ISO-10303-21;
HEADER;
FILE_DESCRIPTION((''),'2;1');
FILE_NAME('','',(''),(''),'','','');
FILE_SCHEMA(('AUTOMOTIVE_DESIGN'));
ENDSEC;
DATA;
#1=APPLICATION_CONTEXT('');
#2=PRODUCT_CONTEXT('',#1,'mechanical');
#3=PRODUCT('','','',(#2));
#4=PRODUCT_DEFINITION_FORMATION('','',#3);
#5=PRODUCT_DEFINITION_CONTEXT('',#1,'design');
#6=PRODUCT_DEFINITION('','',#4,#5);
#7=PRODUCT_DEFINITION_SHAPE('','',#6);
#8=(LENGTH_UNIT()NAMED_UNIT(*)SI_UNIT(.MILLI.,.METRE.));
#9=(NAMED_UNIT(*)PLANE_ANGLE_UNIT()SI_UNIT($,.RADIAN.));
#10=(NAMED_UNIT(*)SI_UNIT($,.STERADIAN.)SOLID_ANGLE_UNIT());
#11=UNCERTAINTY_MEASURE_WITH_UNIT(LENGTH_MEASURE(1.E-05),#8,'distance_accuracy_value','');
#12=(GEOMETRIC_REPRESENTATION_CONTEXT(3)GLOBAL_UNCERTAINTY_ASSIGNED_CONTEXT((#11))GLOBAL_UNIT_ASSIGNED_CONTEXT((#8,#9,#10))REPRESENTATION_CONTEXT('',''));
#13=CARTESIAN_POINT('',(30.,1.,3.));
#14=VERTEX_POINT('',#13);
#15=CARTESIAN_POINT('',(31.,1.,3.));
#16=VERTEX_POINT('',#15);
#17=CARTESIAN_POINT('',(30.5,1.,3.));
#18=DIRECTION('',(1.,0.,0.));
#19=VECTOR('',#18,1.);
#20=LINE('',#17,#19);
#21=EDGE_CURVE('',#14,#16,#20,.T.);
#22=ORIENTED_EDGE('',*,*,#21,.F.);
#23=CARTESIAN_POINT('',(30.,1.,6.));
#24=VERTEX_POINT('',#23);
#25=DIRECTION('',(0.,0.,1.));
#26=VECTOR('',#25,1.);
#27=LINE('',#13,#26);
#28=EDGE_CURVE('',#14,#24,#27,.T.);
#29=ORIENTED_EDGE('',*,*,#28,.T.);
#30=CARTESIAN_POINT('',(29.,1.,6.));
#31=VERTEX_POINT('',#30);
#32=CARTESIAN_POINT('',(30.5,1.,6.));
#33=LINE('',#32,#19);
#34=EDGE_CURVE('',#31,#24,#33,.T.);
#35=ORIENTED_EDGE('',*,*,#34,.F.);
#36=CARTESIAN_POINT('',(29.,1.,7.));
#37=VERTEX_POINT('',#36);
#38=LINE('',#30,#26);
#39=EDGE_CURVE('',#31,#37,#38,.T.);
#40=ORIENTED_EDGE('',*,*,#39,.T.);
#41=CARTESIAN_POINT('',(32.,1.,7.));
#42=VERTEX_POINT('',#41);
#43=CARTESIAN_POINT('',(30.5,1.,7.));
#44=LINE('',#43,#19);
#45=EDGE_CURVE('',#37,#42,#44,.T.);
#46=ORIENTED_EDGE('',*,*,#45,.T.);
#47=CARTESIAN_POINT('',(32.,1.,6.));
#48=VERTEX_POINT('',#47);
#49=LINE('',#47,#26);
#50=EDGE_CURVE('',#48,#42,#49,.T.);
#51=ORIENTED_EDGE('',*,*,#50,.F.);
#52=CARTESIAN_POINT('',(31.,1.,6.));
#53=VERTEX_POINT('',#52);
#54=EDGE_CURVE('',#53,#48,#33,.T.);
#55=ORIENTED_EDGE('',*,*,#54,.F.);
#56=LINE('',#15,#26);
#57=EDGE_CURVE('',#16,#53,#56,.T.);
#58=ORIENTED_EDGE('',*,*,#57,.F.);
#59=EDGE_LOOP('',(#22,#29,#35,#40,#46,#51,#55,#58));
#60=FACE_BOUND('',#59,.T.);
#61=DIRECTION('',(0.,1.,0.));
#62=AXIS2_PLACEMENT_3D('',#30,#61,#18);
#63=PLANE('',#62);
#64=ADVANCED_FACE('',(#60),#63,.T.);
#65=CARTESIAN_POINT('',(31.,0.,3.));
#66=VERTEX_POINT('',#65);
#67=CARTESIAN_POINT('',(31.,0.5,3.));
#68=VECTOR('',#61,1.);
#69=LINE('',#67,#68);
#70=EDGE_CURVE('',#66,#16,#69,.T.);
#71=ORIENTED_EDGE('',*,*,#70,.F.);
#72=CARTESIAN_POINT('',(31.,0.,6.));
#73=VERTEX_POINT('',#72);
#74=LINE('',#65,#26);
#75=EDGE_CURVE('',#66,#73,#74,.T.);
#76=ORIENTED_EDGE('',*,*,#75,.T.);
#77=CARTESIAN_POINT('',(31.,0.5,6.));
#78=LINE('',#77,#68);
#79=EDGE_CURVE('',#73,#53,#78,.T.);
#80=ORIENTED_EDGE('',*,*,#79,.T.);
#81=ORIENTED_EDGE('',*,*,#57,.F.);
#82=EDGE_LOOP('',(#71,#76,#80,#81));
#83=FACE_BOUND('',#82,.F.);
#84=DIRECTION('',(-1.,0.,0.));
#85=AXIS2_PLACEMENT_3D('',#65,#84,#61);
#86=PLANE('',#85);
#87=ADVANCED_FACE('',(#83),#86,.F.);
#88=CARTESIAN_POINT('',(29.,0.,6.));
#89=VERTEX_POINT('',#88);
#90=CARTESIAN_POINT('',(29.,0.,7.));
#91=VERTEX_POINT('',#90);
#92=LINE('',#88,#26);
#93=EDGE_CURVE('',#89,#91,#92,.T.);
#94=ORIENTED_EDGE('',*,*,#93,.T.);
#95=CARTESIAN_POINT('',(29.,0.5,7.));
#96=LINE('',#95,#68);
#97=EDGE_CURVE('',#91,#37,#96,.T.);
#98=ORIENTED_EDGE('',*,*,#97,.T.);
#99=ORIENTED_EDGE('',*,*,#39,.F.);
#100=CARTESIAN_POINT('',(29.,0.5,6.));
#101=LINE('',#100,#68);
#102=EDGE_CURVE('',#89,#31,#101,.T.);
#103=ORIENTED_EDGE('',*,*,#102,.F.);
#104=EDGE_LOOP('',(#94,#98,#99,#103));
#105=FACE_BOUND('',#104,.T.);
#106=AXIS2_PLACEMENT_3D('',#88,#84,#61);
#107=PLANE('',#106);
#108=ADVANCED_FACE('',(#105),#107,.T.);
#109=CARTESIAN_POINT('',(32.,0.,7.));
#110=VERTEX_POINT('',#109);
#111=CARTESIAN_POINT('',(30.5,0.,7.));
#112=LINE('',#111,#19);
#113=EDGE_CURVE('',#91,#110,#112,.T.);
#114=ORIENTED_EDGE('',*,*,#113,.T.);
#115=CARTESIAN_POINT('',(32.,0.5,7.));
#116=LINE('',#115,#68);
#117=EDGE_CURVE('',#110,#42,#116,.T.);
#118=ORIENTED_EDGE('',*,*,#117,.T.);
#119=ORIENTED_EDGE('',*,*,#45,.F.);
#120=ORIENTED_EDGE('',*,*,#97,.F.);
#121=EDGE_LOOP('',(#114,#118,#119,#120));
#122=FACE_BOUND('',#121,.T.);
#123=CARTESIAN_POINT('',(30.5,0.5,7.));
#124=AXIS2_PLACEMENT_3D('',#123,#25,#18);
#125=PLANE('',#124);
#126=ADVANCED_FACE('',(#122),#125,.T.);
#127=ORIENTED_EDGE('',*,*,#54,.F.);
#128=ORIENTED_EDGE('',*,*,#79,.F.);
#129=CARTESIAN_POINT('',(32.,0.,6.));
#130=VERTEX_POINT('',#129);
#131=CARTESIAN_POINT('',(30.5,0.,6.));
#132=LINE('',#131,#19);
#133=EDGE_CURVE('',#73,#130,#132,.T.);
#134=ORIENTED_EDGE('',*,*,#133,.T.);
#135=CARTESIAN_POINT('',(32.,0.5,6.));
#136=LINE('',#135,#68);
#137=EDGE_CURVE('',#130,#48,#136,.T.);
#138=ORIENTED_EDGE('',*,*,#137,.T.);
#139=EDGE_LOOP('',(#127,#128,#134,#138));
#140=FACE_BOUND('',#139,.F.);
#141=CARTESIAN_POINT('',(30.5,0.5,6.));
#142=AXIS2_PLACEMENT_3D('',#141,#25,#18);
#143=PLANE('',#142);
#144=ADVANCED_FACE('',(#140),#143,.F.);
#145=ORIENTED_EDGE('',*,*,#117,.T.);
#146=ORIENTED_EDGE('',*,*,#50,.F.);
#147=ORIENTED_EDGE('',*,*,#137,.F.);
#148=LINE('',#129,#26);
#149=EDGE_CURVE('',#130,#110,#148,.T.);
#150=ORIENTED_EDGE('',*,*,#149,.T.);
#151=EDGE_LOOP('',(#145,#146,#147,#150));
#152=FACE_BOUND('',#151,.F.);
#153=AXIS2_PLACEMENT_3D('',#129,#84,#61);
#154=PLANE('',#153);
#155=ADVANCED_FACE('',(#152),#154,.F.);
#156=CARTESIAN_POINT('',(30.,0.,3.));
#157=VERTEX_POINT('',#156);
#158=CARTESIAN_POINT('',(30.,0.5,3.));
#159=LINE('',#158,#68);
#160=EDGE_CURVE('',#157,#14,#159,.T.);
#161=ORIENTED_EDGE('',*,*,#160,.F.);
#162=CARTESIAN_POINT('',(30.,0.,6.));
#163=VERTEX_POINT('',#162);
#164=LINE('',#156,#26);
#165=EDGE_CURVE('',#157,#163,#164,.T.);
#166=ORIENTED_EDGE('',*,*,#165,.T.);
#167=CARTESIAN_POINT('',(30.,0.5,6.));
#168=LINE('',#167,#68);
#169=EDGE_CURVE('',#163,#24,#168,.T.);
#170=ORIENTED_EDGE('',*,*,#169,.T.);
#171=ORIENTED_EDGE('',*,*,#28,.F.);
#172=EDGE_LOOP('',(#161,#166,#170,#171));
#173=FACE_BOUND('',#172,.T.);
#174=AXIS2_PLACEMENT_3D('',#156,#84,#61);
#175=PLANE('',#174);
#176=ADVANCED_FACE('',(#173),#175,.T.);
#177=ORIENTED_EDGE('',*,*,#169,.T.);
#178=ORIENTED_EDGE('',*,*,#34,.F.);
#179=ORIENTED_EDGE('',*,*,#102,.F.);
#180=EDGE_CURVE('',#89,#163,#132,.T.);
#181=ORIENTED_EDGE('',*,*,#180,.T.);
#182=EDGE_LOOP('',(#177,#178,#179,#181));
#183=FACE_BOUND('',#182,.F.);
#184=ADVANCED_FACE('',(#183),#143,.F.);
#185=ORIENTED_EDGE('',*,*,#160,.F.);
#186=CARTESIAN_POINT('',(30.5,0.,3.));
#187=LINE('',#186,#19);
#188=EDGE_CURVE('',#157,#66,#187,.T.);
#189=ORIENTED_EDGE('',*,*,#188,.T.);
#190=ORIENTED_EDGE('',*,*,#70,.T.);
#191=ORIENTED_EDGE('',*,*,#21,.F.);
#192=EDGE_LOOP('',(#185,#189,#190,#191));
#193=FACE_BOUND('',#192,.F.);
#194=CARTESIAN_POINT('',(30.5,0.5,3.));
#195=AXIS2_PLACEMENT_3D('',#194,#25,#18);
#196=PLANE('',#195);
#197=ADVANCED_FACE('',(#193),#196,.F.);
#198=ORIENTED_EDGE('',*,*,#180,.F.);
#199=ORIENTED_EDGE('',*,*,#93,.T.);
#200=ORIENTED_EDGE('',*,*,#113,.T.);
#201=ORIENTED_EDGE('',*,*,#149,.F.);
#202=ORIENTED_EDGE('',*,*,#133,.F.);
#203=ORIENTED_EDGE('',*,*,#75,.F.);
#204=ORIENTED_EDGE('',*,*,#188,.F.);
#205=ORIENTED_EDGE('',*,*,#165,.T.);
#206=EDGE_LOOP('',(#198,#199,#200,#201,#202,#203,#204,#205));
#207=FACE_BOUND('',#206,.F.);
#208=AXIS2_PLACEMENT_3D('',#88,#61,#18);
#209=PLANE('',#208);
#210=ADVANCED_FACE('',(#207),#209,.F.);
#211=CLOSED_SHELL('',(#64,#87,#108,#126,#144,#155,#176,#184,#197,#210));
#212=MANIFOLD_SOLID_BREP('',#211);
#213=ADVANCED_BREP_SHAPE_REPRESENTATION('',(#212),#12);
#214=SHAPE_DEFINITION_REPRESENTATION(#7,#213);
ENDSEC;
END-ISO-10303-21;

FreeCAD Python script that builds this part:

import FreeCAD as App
import Part
import Sketcher

V = App.Vector
Q = App.Units.Quantity

doc = App.newDocument("Part")
body = doc.addObject("PartDesign::Body", "Body")

sketch1 = doc.addObject("Sketcher::SketchObject", "Sketch")
body.addObject(sketch1)
sketch1.AttachmentSupport = (doc.XY_Plane, [""])
sketch1.MapMode = "FlatFace"
sketch1.AttachmentOffset = App.Placement(V(0, 0, 3), App.Rotation())
sketch1.addGeometry(Part.LineSegment(V(30, 1, 0), V(30, 0, 0)), False)
sketch1.addGeometry(Part.LineSegment(V(30, 0, 0), V(31, 0, 0)), False)
sketch1.addGeometry(Part.LineSegment(V(31, 0, 0), V(31, 1, 0)), False)
sketch1.addGeometry(Part.LineSegment(V(31, 1, 0), V(30, 1, 0)), False)
sketch1.addConstraint(Sketcher.Constraint("Coincident", 0, 2, 1, 1))
sketch1.addConstraint(Sketcher.Constraint("Coincident", 1, 2, 2, 1))
sketch1.addConstraint(Sketcher.Constraint("Coincident", 2, 2, 3, 1))
sketch1.addConstraint(Sketcher.Constraint("Coincident", 3, 2, 0, 1))
sketch1.addConstraint(Sketcher.Constraint("Vertical", 0))
sketch1.addConstraint(Sketcher.Constraint("Horizontal", 1))
sketch1.addConstraint(Sketcher.Constraint("Vertical", 2))
sketch1.addConstraint(Sketcher.Constraint("Horizontal", 3))
sketch1.addConstraint(Sketcher.Constraint("PointOnObject", 0, 2, -1))
sketch1.addConstraint(Sketcher.Constraint("Equal", 3, 0))
sketch1.addConstraint(Sketcher.Constraint("DistanceX", 1, 1, 1, 2, Q("1 mm")))
sketch1.addConstraint(Sketcher.Constraint("DistanceX", -1, 1, 0, 2, Q("30 mm")))
pad1 = doc.addObject("PartDesign::Pad", "Pad")
body.addObject(pad1)
pad1.Profile = sketch1
pad1.Length = 3
body2 = doc.addObject("PartDesign::Body", "Body001")

sketch2 = doc.addObject("Sketcher::SketchObject", "Sketch001")
body2.addObject(sketch2)
sketch2.AttachmentSupport = (doc.getObject("XY_Plane001"), [""])
sketch2.MapMode = "FlatFace"
sketch2.AttachmentOffset = App.Placement(V(0, 0, 6), App.Rotation())
sketch2.addGeometry(Part.LineSegment(V(29, 1, 0), V(29, 0, 0)), False)
sketch2.addGeometry(Part.LineSegment(V(29, 0, 0), V(32, 0, 0)), False)
sketch2.addGeometry(Part.LineSegment(V(32, 0, 0), V(32, 1, 0)), False)
sketch2.addGeometry(Part.LineSegment(V(32, 1, 0), V(29, 1, 0)), False)
sketch2.addConstraint(Sketcher.Constraint("Coincident", 0, 2, 1, 1))
sketch2.addConstraint(Sketcher.Constraint("Coincident", 1, 2, 2, 1))
sketch2.addConstraint(Sketcher.Constraint("Coincident", 2, 2, 3, 1))
sketch2.addConstraint(Sketcher.Constraint("Coincident", 3, 2, 0, 1))
sketch2.addConstraint(Sketcher.Constraint("Vertical", 0))
sketch2.addConstraint(Sketcher.Constraint("Horizontal", 1))
sketch2.addConstraint(Sketcher.Constraint("Vertical", 2))
sketch2.addConstraint(Sketcher.Constraint("Horizontal", 3))
sketch2.addConstraint(Sketcher.Constraint("PointOnObject", 0, 2, -1))
sketch2.addConstraint(Sketcher.Constraint("DistanceX", 1, 1, 1, 2, Q("3 mm")))
sketch2.addConstraint(Sketcher.Constraint("DistanceY", 0, 2, 0, 1, Q("1 mm")))
sketch2.addConstraint(Sketcher.Constraint("DistanceX", -1, 1, 0, 2, Q("29 mm")))
pad2 = doc.addObject("PartDesign::Pad", "Pad001")
body2.addObject(pad2)
pad2.Profile = sketch2
pad2.Length = 1
doc.recompute()

boolean = doc.addObject("PartDesign::Boolean", "Boolean")
body2.addObject(boolean)
boolean.Type = "Fuse"
boolean.addObjects([body])

doc.recompute()
